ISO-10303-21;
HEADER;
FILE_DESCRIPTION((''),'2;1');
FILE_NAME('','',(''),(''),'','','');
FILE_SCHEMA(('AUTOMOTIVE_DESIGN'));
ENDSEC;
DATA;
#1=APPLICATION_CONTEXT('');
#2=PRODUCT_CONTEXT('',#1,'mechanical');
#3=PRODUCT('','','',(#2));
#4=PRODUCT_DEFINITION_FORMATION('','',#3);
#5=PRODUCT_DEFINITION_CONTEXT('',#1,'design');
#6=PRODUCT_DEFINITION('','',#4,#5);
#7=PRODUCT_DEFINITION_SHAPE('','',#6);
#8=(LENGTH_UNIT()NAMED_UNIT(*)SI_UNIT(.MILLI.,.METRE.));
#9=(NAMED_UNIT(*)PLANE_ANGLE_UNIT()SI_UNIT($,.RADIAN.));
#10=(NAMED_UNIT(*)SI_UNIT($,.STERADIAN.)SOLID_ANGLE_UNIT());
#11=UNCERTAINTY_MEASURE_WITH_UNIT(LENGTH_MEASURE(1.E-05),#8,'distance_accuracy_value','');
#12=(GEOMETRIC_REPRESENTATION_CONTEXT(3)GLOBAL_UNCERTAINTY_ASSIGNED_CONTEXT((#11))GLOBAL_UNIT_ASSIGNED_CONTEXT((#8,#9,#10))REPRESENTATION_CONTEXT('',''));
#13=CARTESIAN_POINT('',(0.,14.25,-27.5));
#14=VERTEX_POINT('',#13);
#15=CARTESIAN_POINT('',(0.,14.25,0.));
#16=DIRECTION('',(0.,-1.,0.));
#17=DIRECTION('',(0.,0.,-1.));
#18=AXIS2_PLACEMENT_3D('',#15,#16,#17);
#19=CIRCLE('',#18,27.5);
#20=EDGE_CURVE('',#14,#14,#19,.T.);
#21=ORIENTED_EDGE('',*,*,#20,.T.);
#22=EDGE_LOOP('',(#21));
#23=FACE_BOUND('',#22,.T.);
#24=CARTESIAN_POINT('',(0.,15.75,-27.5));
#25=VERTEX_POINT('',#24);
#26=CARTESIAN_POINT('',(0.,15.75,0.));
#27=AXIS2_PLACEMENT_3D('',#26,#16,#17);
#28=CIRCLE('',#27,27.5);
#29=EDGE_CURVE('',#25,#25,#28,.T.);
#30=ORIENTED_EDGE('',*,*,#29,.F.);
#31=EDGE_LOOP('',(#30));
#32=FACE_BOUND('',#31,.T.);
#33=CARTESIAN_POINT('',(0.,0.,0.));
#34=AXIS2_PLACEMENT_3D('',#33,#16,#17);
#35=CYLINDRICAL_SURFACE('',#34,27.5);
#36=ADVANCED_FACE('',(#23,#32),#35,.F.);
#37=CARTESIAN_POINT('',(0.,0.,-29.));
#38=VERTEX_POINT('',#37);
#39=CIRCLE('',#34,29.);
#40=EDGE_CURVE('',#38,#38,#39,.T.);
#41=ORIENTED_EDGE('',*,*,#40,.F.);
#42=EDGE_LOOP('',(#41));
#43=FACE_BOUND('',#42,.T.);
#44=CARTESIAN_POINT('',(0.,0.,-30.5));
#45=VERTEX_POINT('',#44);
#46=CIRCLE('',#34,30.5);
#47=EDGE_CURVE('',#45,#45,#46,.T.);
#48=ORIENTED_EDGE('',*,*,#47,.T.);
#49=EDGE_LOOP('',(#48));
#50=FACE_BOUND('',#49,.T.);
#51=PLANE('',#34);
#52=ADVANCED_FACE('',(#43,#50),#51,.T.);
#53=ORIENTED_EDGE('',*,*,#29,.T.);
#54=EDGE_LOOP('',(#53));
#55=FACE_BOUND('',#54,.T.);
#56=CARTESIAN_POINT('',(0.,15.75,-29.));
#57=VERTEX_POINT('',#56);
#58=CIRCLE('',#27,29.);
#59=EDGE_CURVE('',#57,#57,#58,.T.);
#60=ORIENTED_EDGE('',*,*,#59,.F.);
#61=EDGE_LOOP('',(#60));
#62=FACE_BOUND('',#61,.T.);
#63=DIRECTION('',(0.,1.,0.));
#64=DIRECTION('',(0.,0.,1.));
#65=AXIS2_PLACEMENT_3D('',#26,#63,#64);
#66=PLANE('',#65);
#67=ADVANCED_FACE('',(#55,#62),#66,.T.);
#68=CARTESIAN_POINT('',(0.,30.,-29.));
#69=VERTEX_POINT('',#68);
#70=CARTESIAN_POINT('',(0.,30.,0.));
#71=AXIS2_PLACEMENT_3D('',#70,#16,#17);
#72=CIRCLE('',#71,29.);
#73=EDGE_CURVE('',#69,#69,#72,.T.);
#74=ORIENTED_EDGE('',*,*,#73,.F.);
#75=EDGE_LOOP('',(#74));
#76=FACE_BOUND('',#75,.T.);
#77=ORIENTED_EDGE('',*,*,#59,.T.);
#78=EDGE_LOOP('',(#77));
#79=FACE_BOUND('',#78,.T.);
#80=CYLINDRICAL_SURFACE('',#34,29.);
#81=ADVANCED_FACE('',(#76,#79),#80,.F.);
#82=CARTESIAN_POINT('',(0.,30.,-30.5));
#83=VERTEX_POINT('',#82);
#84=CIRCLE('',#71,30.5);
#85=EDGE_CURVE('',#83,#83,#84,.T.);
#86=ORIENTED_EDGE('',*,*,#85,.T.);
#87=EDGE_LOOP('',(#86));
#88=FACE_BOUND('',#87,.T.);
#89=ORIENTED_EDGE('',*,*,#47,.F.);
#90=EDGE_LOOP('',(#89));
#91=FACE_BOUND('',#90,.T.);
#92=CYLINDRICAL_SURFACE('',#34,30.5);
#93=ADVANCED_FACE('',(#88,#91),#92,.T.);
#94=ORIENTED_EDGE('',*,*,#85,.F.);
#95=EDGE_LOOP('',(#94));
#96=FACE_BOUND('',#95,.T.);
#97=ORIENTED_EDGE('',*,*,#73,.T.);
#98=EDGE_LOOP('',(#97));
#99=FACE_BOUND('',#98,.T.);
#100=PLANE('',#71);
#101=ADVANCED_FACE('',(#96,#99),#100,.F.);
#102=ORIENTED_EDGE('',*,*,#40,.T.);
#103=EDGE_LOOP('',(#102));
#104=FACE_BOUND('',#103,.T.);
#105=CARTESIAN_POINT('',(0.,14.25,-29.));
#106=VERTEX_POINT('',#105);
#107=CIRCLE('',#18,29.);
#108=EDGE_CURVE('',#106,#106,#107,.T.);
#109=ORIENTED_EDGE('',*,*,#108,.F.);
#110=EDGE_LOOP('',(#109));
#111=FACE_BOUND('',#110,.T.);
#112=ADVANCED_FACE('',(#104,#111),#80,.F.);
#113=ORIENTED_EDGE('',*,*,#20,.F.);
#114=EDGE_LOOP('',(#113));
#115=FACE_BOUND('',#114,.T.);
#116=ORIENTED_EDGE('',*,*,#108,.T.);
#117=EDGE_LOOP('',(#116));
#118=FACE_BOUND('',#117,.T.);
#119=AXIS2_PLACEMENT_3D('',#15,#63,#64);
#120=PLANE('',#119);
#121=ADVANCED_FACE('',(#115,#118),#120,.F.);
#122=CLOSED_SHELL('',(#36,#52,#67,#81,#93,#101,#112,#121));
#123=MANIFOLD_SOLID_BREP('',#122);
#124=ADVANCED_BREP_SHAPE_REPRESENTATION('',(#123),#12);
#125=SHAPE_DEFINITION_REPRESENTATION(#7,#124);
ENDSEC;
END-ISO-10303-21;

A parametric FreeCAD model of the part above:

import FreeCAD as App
import Part
import Sketcher
Q = App.Units.Quantity


def add_polygon(sketch, points):
    """Adds a closed chain of lines whose ends are joined by coincident constraints."""
    first, n = sketch.GeometryCount, len(points)
    for a, b in zip(points, points[1:] + points[:1]):
        sketch.addGeometry(Part.LineSegment(App.Vector(*a, 0), App.Vector(*b, 0)), False)
    for i in range(n):
        sketch.addConstraint(Sketcher.Constraint("Coincident", first + i, 2, first + (i + 1) % n, 1))

doc = App.newDocument("Part")
body = doc.addObject("PartDesign::Body", "Body")

sketch1 = body.newObject("Sketcher::SketchObject", "Sketch")
sketch1.AttachmentSupport = (doc.getObject("XY_Plane"), [""])
sketch1.MapMode = "FlatFace"
add_polygon(sketch1, [(27.5, 15.8), (27.5, 14.2), (29, 14.2), (29, 0), (30.5, 0), (30.5, 30), (29, 30), (29, 15.8)])
sketch1.addConstraint([
    Sketcher.Constraint("Vertical", 0),
    Sketcher.Constraint("Horizontal", 1),
    Sketcher.Constraint("Vertical", 2),
    Sketcher.Constraint("Horizontal", 3),
    Sketcher.Constraint("Vertical", 4),
    Sketcher.Constraint("Horizontal", 5),
    Sketcher.Constraint("Vertical", 6),
    Sketcher.Constraint("Horizontal", 7),
    Sketcher.Constraint("PointOnObject", 2, 2, -1),
    Sketcher.Constraint("Vertical", 2, 2, 5, 2),
    Sketcher.Constraint("Equal", 1, 3),
    Sketcher.Constraint("Equal", 7, 0),
    Sketcher.Constraint("Equal", 2, 6),
    Sketcher.Constraint("DistanceY", 4, 1, 4, 2, Q("30 mm")),
    Sketcher.Constraint("DistanceX", 1, 1, 1, 2, Q("1.5 mm")),
    Sketcher.Constraint("DistanceX", -1, 1, 1, 2, Q("29 mm")),
])
revolution = body.newObject("PartDesign::Revolution", "Revolution")
revolution.Profile = sketch1
revolution.ReferenceAxis = (sketch1, ["V_Axis"])
revolution.Angle = 360

doc.recompute()
